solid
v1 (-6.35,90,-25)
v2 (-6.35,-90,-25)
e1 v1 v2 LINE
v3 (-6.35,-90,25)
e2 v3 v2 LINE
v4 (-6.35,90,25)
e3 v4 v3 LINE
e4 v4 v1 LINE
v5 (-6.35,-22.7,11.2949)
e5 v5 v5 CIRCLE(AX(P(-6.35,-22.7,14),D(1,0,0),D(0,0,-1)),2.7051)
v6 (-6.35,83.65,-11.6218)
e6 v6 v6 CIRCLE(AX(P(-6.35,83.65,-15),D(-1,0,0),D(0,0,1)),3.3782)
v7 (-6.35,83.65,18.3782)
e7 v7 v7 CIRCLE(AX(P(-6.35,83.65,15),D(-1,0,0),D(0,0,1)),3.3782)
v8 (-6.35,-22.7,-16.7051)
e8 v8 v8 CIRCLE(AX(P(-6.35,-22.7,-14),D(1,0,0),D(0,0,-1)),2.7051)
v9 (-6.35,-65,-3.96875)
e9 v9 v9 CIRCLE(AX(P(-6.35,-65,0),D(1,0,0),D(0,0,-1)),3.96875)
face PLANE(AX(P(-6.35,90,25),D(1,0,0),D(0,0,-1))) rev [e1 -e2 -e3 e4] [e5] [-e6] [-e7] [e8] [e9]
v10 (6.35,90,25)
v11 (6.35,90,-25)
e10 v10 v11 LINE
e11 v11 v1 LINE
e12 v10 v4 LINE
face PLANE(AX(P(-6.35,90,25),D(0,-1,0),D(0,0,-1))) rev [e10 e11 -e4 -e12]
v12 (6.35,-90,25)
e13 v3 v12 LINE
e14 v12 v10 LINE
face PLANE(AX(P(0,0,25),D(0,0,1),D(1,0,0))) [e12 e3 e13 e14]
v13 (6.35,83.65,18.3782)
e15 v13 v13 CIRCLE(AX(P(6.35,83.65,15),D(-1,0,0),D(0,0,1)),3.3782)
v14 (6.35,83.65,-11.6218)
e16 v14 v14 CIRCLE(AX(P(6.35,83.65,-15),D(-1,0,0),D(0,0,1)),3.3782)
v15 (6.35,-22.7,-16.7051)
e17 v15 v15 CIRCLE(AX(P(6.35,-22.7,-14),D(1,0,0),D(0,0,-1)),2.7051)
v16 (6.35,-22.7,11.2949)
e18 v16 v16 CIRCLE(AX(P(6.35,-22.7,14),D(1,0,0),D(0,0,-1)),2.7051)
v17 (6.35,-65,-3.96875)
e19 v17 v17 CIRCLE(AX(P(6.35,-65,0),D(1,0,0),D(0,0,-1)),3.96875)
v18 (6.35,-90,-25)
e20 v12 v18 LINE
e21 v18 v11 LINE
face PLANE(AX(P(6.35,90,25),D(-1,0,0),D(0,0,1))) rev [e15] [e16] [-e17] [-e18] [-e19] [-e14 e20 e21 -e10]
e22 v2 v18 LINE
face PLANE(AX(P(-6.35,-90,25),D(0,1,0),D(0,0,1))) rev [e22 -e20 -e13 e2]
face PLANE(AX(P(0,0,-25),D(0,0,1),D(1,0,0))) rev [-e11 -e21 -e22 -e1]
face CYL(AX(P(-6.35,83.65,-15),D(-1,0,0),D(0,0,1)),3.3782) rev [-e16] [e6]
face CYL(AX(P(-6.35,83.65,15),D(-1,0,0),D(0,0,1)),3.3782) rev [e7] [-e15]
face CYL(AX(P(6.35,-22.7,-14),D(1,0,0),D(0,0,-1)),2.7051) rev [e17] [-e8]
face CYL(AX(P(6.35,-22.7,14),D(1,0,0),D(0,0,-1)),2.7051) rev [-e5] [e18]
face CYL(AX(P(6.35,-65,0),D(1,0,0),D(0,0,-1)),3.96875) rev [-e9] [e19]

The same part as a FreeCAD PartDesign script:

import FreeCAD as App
import Part
import Sketcher
Q = App.Units.Quantity


def add_polygon(sketch, points):
    """Adds a closed chain of lines whose ends are joined by coincident constraints."""
    first, n = sketch.GeometryCount, len(points)
    for a, b in zip(points, points[1:] + points[:1]):
        sketch.addGeometry(Part.LineSegment(App.Vector(*a, 0), App.Vector(*b, 0)), False)
    for i in range(n):
        sketch.addConstraint(Sketcher.Constraint("Coincident", first + i, 2, first + (i + 1) % n, 1))

doc = App.newDocument("Part")
body = doc.addObject("PartDesign::Body", "Body")

sketch1 = doc.addObject("Sketcher::SketchObject", "Sketch")
body.addObject(sketch1)
sketch1.AttachmentSupport = (doc.XY_Plane, [""])
sketch1.MapMode = "FlatFace"
add_polygon(sketch1, [(-6, 90), (-6, -90), (6, -90), (6, 90)])
sketch1.addConstraint([
    Sketcher.Constraint("Vertical", 0),
    Sketcher.Constraint("Horizontal", 1),
    Sketcher.Constraint("Vertical", 2),
    Sketcher.Constraint("Horizontal", 3),
    Sketcher.Constraint("Symmetric", 0, 2, 2, 2, -1, 1),
    Sketcher.Constraint("DistanceX", 1, 1, 1, 2, Q("0.5 in")),
    Sketcher.Constraint("DistanceY", 0, 2, 0, 1, Q("180 mm")),
])
pad1 = doc.addObject("PartDesign::Pad", "Pad")
body.addObject(pad1)
pad1.Profile = sketch1
pad1.Length = 50
pad1.Midplane = True

sketch2 = doc.addObject("Sketcher::SketchObject", "Sketch001")
body.addObject(sketch2)
sketch2.AttachmentSupport = (doc.YZ_Plane, [""])
sketch2.MapMode = "FlatFace"
sketch2.AttachmentOffset = App.Placement(App.Vector(0, 0, 0.25 * 25.4), App.Rotation())
sketch2.addGeometry(Part.Circle(App.Vector(-65, 0, 0), App.Vector(0, 0, 1), 4), False)
sketch2.addConstraint([
    Sketcher.Constraint("PointOnObject", 0, 3, -1),
    Sketcher.Constraint("Diameter", 0, Q("0.3125 in")),
    Sketcher.Constraint("DistanceX", 0, 3, -1, 1, Q("65 mm")),
])
doc.recompute()
hole = doc.addObject("PartDesign::Hole", "Hole")
body.addObject(hole)
hole.Profile = sketch2
hole.ThreadType = "None"
hole.Diameter = Q("0.3125 in")
hole.DepthType = "ThroughAll"

sketch3 = doc.addObject("Sketcher::SketchObject", "Sketch002")
body.addObject(sketch3)
sketch3.AttachmentSupport = (doc.YZ_Plane, [""])
sketch3.MapMode = "FlatFace"
sketch3.AttachmentOffset = App.Placement(App.Vector(0, 0, -0.25 * 25.4), App.Rotation())
sketch3.addGeometry([
    Part.Circle(App.Vector(83.7, -15, 0), App.Vector(0, 0, 1), 3.4),
    Part.Circle(App.Vector(83.7, 15, 0), App.Vector(0, 0, 1), 3.4),
], False)
sketch3.addConstraint([
    Sketcher.Constraint("Equal", 0, 1),
    Sketcher.Constraint("Symmetric", 0, 3, 1, 3, -1),
    Sketcher.Constraint("Diameter", 0, Q("0.266 in")),
    Sketcher.Constraint("DistanceX", -1, 1, 0, 3, Q("83.65 mm")),
    Sketcher.Constraint("DistanceY", 0, 3, -1, 1, Q("15 mm")),
])
doc.recompute()
hole2 = doc.addObject("PartDesign::Hole", "Hole001")
body.addObject(hole2)
hole2.Profile = sketch3
hole2.ThreadType = "None"
hole2.Diameter = Q("0.266 in")
hole2.DepthType = "ThroughAll"
hole2.Reversed = True

sketch4 = doc.addObject("Sketcher::SketchObject", "Sketch003")
body.addObject(sketch4)
sketch4.AttachmentSupport = (doc.YZ_Plane, [""])
sketch4.MapMode = "FlatFace"
sketch4.AttachmentOffset = App.Placement(App.Vector(0, 0, 0.25 * 25.4), App.Rotation())
sketch4.addGeometry([
    Part.Circle(App.Vector(-22.7, -14, 0), App.Vector(0, 0, 1), 2.7),
    Part.Circle(App.Vector(-22.7, 14, 0), App.Vector(0, 0, 1), 2.7),
], False)
sketch4.addConstraint([
    Sketcher.Constraint("Equal", 0, 1),
    Sketcher.Constraint("Symmetric", 0, 3, 1, 3, -1),
    Sketcher.Constraint("Diameter", 0, Q("0.213 in")),
    Sketcher.Constraint("DistanceX", 0, 3, -1, 1, Q("22.7 mm")),
    Sketcher.Constraint("DistanceY", 0, 3, -1, 1, Q("14 mm")),
])
doc.recompute()
hole3 = doc.addObject("PartDesign::Hole", "Hole002")
body.addObject(hole3)
hole3.Profile = sketch4
hole3.ThreadType = "None"
hole3.Diameter = Q("0.213 in")
hole3.DepthType = "ThroughAll"

doc.recompute()
